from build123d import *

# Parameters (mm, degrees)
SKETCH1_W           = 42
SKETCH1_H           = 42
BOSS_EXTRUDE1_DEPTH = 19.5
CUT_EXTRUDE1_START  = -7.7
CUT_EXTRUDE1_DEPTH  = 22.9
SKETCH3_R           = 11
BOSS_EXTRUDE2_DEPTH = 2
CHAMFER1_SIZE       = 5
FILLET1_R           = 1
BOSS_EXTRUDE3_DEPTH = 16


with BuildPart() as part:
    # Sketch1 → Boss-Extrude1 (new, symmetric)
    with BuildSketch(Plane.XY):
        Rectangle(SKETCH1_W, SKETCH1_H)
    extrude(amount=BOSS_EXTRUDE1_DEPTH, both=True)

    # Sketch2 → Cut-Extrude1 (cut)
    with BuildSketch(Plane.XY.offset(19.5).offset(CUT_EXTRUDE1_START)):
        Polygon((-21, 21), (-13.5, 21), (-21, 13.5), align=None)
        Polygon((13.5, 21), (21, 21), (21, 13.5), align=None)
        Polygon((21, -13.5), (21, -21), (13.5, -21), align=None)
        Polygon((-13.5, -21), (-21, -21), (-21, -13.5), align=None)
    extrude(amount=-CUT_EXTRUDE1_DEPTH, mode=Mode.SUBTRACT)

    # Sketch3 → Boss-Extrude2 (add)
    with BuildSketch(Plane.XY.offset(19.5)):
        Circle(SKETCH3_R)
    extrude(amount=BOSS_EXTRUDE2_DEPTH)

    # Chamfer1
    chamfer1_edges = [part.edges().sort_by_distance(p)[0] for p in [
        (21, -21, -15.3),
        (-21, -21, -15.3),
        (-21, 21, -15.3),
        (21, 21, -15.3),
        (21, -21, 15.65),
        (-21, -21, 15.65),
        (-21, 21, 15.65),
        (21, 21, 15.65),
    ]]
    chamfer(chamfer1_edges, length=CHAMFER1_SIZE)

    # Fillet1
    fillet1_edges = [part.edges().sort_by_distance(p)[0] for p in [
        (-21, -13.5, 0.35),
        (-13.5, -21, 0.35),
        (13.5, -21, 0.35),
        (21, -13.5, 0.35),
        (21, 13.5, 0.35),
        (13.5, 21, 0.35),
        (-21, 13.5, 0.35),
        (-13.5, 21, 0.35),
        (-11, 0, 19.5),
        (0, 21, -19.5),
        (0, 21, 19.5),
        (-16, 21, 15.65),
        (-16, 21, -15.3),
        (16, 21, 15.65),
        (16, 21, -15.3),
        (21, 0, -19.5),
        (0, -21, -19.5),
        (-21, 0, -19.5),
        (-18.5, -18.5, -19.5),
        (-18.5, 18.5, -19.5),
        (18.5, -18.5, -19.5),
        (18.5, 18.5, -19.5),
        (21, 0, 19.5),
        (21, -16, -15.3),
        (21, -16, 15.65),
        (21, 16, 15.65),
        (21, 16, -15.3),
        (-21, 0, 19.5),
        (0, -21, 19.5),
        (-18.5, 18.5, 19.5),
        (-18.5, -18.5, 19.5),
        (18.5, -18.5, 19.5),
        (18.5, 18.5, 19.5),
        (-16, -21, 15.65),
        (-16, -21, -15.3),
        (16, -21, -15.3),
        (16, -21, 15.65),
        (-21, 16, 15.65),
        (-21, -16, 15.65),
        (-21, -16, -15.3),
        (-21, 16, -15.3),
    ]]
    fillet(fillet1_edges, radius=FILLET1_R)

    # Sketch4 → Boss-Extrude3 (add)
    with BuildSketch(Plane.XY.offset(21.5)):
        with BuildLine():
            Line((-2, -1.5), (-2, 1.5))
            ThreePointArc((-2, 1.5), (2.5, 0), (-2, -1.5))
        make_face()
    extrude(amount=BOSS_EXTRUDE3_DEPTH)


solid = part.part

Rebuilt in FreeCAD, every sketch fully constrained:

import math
import FreeCAD as App
import Part
import Sketcher

V = App.Vector


def edges_at(feature, points):
    """Names of the edges that pass closest to the given points."""
    edges = feature.Shape.Edges
    near = lambda p: min(range(len(edges)), key=lambda i: edges[i].distToShape(Part.Vertex(*p))[0])
    return sorted({f"Edge{near(p) + 1}" for p in points})


def add_polygon(sketch, points):
    """Adds a closed chain of lines whose ends are joined by coincident constraints."""
    first, n = sketch.GeometryCount, len(points)
    for a, b in zip(points, points[1:] + points[:1]):
        sketch.addGeometry(Part.LineSegment(App.Vector(*a, 0), App.Vector(*b, 0)), False)
    for i in range(n):
        sketch.addConstraint(Sketcher.Constraint("Coincident", first + i, 2, first + (i + 1) % n, 1))

doc = App.newDocument("Part")
body = doc.addObject("PartDesign::Body", "Body")

# Sketch on XY plane
sketch1 = body.newObject("Sketcher::SketchObject", "Sketch")
sketch1.AttachmentSupport = (doc.getObject("XY_Plane"), [""])
sketch1.MapMode = "FlatFace"
add_polygon(sketch1, [(-21, 21), (-21, -21), (21, -21), (21, 21)])  # lines 0-3
sketch1.addConstraint([
    Sketcher.Constraint("Vertical", 0),
    Sketcher.Constraint("Horizontal", 1),
    Sketcher.Constraint("Vertical", 2),
    Sketcher.Constraint("Horizontal", 3),
    Sketcher.Constraint("Symmetric", 0, 2, 2, 2, -1, 1),
    Sketcher.Constraint("Equal", 3, 0),
    Sketcher.Constraint("DistanceX", 1, 1, 1, 2, 42.0),
])
pad1 = body.newObject("PartDesign::Pad", "Pad")
pad1.Profile = sketch1
pad1.Length = 39
pad1.Midplane = True

# Sketch on XY plane
sketch2 = body.newObject("Sketcher::SketchObject", "Sketch001")
sketch2.AttachmentSupport = (doc.getObject("XY_Plane"), [""])
sketch2.MapMode = "FlatFace"
sketch2.AttachmentOffset = App.Placement(V(0, 0, 11.8), App.Rotation())
add_polygon(sketch2, [(-14, 21), (-21, 21), (-21, 14)])  # lines 0-2
add_polygon(sketch2, [(21, 21), (14, 21), (21, 14)])  # lines 3-5
add_polygon(sketch2, [(21, -21), (21, -14), (14, -21)])  # lines 6-8
add_polygon(sketch2, [(-21, -21), (-14, -21), (-21, -14)])  # lines 9-11
sketch2.addConstraint([
    Sketcher.Constraint("Horizontal", 0),
    Sketcher.Constraint("Vertical", 1),
    Sketcher.Constraint("Horizontal", 3),
    Sketcher.Constraint("Vertical", 5),
    Sketcher.Constraint("Vertical", 6),
    Sketcher.Constraint("Horizontal", 8),
    Sketcher.Constraint("Horizontal", 9),
    Sketcher.Constraint("Vertical", 11),
    Sketcher.Constraint("Symmetric", 1, 2, 6, 2, -1, 1),
    Sketcher.Constraint("Symmetric", 2, 2, 7, 2, -1, 1),
    Sketcher.Constraint("Symmetric", 3, 2, 9, 2, -1, 1),
    Sketcher.Constraint("Symmetric", 4, 2, 10, 2, -1, 1),
    Sketcher.Constraint("Symmetric", 2, 2, 3, 2, -2),
    Sketcher.Constraint("Symmetric", 1, 2, 4, 2, -2),
    Sketcher.Constraint("Perpendicular", 2, 4),
    Sketcher.Constraint("DistanceX", 0, 2, 0, 1, 7.5),
    Sketcher.Constraint("DistanceX", 0, 2, -1, 1, 21.0),
    Sketcher.Constraint("DistanceY", -1, 1, 0, 2, 21.0),
])
pocket1 = body.newObject("PartDesign::Pocket", "Pocket")
pocket1.Profile = sketch2
pocket1.Length = 22.9

# Sketch on XY plane
sketch3 = body.newObject("Sketcher::SketchObject", "Sketch002")
sketch3.AttachmentSupport = (doc.getObject("XY_Plane"), [""])
sketch3.MapMode = "FlatFace"
sketch3.AttachmentOffset = App.Placement(V(0, 0, 19.5), App.Rotation())
sketch3.addGeometry(Part.Circle(V(0, 0, 0), V(0, 0, 1), 11), False)
sketch3.addConstraint([
    Sketcher.Constraint("Coincident", 0, 3, -1, 1),
    Sketcher.Constraint("Diameter", 0, 22.0),
])
pad2 = body.newObject("PartDesign::Pad", "Pad001")
pad2.Profile = sketch3
pad2.Length = 2
doc.recompute()

chamfer = body.newObject("PartDesign::Chamfer", "Chamfer")
chamfer.Base = (pad2, edges_at(pad2, [
    (21, -21, -15.3),
    (-21, -21, -15.3),
    (-21, 21, -15.3),
    (21, 21, -15.3),
    (21, -21, 15.65),
    (-21, -21, 15.65),
    (-21, 21, 15.65),
    (21, 21, 15.65),
]))
chamfer.Size = 5
doc.recompute()

fillet = body.newObject("PartDesign::Fillet", "Fillet")
fillet.Base = (chamfer, edges_at(chamfer, [
    (-21, -13.5, 0.35),
    (-13.5, -21, 0.35),
    (13.5, -21, 0.35),
    (21, -13.5, 0.35),
    (21, 13.5, 0.35),
    (13.5, 21, 0.35),
    (-21, 13.5, 0.35),
    (-13.5, 21, 0.35),
    (-11, 0, 19.5),
    (0, 21, -19.5),
    (0, 21, 19.5),
    (-16, 21, 15.65),
    (-16, 21, -15.3),
    (16, 21, 15.65),
    (16, 21, -15.3),
    (21, 0, -19.5),
    (0, -21, -19.5),
    (-21, 0, -19.5),
    (-18.5, -18.5, -19.5),
    (-18.5, 18.5, -19.5),
    (18.5, -18.5, -19.5),
    (18.5, 18.5, -19.5),
    (21, 0, 19.5),
    (21, -16, -15.3),
    (21, -16, 15.65),
    (21, 16, 15.65),
    (21, 16, -15.3),
    (-21, 0, 19.5),
    (0, -21, 19.5),
    (-18.5, 18.5, 19.5),
    (-18.5, -18.5, 19.5),
    (18.5, -18.5, 19.5),
    (18.5, 18.5, 19.5),
    (-16, -21, 15.65),
    (-16, -21, -15.3),
    (16, -21, -15.3),
    (16, -21, 15.65),
    (-21, 16, 15.65),
    (-21, -16, 15.65),
    (-21, -16, -15.3),
    (-21, 16, -15.3),
]))
fillet.Radius = 1

# Sketch on XY plane
sketch4 = body.newObject("Sketcher::SketchObject", "Sketch003")
sketch4.AttachmentSupport = (doc.getObject("XY_Plane"), [""])
sketch4.MapMode = "FlatFace"
sketch4.AttachmentOffset = App.Placement(V(0, 0, 21.5), App.Rotation())
sketch4.addGeometry([
    Part.LineSegment(V(-2, 1.5, 0), V(-2, -1.5, 0)),
    Part.ArcOfCircle(Part.Circle(V(0, 0, 0), V(0, 0, 1), 2.5), math.radians(-143), math.radians(143)),
], False)
sketch4.addConstraint([
    Sketcher.Constraint("Coincident", 0, 1, 1, 2),
    Sketcher.Constraint("Coincident", 1, 1, 0, 2),
    Sketcher.Constraint("Vertical", 0),
    Sketcher.Constraint("Coincident", 1, 3, -1, 1),
    Sketcher.Constraint("Radius", 1, 2.5),
    Sketcher.Constraint("DistanceY", 0, 2, 0, 1, 3.0),
])
pad3 = body.newObject("PartDesign::Pad", "Pad002")
pad3.Profile = sketch4
pad3.Length = 16

doc.recompute()
